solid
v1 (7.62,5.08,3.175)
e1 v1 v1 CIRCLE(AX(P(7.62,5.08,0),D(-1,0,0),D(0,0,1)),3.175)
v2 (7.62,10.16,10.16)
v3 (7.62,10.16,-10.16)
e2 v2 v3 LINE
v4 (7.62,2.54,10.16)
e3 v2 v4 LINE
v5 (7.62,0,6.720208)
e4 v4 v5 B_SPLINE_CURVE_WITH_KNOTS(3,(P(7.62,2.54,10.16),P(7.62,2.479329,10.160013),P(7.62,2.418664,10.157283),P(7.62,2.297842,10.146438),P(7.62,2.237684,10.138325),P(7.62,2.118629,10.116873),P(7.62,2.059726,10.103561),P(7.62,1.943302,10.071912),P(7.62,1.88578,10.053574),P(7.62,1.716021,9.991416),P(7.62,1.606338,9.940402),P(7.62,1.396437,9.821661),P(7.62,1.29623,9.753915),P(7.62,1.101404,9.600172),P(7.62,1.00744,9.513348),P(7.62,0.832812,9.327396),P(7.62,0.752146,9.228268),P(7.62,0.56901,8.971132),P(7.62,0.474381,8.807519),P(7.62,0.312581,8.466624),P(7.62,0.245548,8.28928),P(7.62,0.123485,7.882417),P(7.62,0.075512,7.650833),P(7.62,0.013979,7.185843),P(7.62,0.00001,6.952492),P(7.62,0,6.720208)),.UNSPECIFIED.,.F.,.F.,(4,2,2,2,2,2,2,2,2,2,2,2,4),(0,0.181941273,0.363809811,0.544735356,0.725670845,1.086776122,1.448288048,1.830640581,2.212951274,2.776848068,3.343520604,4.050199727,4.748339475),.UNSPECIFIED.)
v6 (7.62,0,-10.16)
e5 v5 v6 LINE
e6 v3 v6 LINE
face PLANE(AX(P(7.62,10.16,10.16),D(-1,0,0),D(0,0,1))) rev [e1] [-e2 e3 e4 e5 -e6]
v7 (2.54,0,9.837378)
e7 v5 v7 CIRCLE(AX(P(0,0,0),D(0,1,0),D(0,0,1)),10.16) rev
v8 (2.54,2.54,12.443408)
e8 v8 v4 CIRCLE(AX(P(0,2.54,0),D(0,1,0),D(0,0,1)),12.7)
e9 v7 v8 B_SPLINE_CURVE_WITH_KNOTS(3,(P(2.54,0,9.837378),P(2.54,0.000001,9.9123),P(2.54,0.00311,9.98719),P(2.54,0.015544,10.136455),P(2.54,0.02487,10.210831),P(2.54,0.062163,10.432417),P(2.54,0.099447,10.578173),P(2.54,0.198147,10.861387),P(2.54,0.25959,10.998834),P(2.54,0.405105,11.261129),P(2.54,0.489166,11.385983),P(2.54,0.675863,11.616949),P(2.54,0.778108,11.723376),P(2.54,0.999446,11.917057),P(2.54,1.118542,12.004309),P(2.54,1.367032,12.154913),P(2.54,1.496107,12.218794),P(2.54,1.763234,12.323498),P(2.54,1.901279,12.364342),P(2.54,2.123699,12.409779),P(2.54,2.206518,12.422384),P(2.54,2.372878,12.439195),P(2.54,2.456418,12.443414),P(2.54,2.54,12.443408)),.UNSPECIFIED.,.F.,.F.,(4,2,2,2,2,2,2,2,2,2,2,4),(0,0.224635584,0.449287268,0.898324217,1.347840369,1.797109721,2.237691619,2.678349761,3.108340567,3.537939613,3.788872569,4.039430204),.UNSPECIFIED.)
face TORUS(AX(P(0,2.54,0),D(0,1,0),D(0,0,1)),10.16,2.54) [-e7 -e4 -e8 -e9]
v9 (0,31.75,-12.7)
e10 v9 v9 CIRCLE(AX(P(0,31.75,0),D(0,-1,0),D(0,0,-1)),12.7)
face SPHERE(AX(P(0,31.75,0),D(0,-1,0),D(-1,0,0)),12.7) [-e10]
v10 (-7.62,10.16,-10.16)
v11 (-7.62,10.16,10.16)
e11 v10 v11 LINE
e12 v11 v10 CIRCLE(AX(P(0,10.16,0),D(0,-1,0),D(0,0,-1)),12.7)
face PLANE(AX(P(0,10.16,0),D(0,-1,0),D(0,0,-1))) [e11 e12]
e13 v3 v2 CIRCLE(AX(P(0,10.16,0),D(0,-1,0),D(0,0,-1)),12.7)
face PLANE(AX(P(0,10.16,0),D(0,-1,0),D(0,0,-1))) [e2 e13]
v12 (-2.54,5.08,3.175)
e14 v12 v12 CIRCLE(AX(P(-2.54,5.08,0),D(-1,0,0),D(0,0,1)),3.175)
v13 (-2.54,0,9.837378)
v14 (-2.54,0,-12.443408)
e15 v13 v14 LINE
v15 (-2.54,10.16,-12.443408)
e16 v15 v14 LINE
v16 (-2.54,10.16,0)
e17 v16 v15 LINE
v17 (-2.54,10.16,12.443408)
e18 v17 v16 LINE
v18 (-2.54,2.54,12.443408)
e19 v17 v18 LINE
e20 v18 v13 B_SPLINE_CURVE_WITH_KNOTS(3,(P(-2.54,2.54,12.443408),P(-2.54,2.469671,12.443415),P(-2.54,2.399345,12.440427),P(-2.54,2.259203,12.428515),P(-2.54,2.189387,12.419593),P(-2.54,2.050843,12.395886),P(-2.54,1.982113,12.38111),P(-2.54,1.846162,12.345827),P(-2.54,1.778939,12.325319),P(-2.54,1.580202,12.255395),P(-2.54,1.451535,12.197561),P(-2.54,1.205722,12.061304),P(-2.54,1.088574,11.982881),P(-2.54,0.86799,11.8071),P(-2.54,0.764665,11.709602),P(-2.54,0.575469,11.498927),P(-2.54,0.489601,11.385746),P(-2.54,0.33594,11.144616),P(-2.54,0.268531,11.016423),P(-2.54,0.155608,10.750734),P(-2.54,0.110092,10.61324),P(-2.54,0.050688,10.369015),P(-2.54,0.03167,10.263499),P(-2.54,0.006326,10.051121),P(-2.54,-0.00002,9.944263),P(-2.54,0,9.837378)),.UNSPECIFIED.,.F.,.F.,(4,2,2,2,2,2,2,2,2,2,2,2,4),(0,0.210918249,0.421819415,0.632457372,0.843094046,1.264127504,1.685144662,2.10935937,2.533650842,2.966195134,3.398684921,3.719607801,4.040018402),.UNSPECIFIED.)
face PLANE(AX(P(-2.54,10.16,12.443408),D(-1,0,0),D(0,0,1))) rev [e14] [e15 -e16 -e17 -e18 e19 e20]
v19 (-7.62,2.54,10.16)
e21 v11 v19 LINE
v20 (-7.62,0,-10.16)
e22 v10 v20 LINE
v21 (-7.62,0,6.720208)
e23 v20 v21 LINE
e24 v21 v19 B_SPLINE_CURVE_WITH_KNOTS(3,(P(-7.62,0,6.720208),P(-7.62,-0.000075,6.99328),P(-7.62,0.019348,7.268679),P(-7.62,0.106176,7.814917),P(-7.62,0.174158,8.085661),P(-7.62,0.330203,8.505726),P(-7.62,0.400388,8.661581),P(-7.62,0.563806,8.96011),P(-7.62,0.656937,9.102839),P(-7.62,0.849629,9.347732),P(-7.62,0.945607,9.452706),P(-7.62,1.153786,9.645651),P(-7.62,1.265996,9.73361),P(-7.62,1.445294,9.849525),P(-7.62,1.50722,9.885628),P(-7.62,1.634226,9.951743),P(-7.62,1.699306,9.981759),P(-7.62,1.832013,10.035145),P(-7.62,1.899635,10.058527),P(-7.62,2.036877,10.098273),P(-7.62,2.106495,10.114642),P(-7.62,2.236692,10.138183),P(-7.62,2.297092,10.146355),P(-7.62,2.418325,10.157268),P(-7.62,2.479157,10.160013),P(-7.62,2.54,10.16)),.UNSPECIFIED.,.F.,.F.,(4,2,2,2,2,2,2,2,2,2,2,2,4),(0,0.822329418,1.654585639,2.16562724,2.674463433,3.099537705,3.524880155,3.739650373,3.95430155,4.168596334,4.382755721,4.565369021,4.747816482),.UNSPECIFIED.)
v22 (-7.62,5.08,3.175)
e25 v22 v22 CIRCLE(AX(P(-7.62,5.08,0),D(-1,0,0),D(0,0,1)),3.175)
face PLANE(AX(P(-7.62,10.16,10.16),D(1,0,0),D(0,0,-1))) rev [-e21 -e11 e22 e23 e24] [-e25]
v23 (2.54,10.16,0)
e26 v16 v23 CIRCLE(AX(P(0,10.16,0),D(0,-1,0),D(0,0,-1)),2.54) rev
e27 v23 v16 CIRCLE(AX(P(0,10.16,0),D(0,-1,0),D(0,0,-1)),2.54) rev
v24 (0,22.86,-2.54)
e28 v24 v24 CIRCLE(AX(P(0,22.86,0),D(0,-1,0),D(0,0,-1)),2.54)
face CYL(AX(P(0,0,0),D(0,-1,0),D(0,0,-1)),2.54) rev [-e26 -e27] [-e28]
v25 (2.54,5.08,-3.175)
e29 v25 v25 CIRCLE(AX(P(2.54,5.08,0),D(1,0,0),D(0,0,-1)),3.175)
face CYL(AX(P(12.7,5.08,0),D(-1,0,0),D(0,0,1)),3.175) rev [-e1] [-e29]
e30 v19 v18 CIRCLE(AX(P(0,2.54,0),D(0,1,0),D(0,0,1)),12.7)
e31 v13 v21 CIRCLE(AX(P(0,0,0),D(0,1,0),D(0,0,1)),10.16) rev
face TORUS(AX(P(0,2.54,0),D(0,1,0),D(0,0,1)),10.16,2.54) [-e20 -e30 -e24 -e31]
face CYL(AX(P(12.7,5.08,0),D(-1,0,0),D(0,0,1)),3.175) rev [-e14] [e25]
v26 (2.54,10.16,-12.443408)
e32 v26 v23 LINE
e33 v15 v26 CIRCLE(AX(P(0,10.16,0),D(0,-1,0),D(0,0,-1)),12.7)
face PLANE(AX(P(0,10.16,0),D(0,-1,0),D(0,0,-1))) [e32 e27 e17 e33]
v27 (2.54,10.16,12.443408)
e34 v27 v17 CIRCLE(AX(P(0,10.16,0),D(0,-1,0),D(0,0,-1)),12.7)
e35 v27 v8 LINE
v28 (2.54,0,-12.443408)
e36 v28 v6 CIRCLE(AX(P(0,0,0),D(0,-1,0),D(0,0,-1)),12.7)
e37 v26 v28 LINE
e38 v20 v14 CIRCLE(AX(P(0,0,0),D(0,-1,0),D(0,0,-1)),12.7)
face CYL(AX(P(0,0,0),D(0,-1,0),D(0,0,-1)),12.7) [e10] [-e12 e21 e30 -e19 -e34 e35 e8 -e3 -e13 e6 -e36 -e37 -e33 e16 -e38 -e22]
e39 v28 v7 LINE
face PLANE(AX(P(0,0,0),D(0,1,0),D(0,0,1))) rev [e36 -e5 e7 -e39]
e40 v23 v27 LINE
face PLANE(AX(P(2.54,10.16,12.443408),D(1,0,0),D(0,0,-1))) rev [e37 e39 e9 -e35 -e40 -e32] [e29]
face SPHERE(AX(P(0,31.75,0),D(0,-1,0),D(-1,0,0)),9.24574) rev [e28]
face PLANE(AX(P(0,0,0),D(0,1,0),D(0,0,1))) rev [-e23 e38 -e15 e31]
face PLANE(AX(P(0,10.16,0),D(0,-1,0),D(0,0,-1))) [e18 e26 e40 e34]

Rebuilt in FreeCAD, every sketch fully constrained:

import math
import FreeCAD as App
import Part
import Sketcher
from FreeCAD import Vector
Q = App.Units.Quantity


def edges_at(feature, points):
    """Names of the edges that pass closest to the given points."""
    edges = feature.Shape.Edges
    near = lambda p: min(range(len(edges)), key=lambda i: edges[i].distToShape(Part.Vertex(*p))[0])
    return sorted({f"Edge{near(p) + 1}" for p in points})

doc = App.newDocument("Part")
body = doc.addObject("PartDesign::Body", "Body")

# Sketch on XY plane
sketch1 = body.newObject("Sketcher::SketchObject", "Sketch")
sketch1.AttachmentSupport = (doc.getObject("XY_Plane"), [""])
sketch1.MapMode = "FlatFace"
sketch1.addGeometry([
    Part.LineSegment(Vector(0, 0, 0), Vector(0, 5.6, 0)),  # 0
    Part.LineSegment(Vector(0, 5.6, 0), Vector(-2.5, 5.6, 0)),  # 1
    Part.LineSegment(Vector(-2.5, 5.6, 0), Vector(-2.5, 22.9, 0)),  # 2
    Part.ArcOfCircle(Part.Circle(Vector(0, 31.8, 0), Vector(0, 0, 1), 9.2), math.radians(90), math.radians(254)),  # 3
    Part.LineSegment(Vector(0, 41, 0), Vector(0, 44.5, 0)),  # 4
    Part.ArcOfCircle(Part.Circle(Vector(0, 31.8, 0), Vector(0, 0, 1), 12.7), math.radians(90), math.radians(180)),  # 5
    Part.LineSegment(Vector(-12.7, 31.8, 0), Vector(-12.7, 0, 0)),  # 6
    Part.LineSegment(Vector(-12.7, 0, 0), Vector(0, 0, 0)),  # 7
], False)
sketch1.addConstraint([
    Sketcher.Constraint("Coincident", 0, 2, 1, 1),
    Sketcher.Constraint("Coincident", 1, 2, 2, 1),
    Sketcher.Constraint("Coincident", 2, 2, 3, 2),
    Sketcher.Constraint("Coincident", 3, 1, 4, 1),
    Sketcher.Constraint("Coincident", 4, 2, 5, 1),
    Sketcher.Constraint("Tangent", 5, 2, 6, 1),
    Sketcher.Constraint("Coincident", 6, 2, 7, 1),
    Sketcher.Constraint("Coincident", 7, 2, 0, 1),
    Sketcher.Constraint("Vertical", 0),
    Sketcher.Constraint("Horizontal", 1),
    Sketcher.Constraint("Vertical", 2),
    Sketcher.Constraint("Vertical", 4),
    Sketcher.Constraint("Vertical", 6),
    Sketcher.Constraint("Horizontal", 7),
    Sketcher.Constraint("Coincident", 7, 2, -1, 1),
    Sketcher.Constraint("Coincident", 5, 3, 3, 3),
    Sketcher.Constraint("PointOnObject", 3, 3, -2),
    Sketcher.Constraint("PointOnObject", 3, 1, -2),
    Sketcher.Constraint("Radius", 5, Q("0.5 in")),
    Sketcher.Constraint("DistanceX", 1, 2, 1, 1, Q("0.1 in")),
    Sketcher.Constraint("DistanceY", 6, 2, 6, 1, Q("1.25 in")),
    Sketcher.Constraint("DistanceY", -1, 1, 2, 2, Q("0.9 in")),
    Sketcher.Constraint("DistanceY", 0, 1, 0, 2, 5.602635),
])
revolution = body.newObject("PartDesign::Revolution", "Revolution")
revolution.Profile = sketch1
revolution.ReferenceAxis = (sketch1, ["V_Axis"])
revolution.Angle = 360

# Sketch on XZ plane
sketch2 = body.newObject("Sketcher::SketchObject", "Sketch001")
sketch2.AttachmentSupport = (doc.getObject("XZ_Plane"), [""])
sketch2.MapMode = "FlatFace"
sketch2.addGeometry([
    Part.LineSegment(Vector(-3, 12, 0), Vector(-3, -12, 0)),  # 0
    Part.ArcOfCircle(Part.Circle(Vector(0, 0, 0), Vector(0, 0, 1), 13), math.radians(-102), math.radians(-78)),  # 1
    Part.LineSegment(Vector(3, -12, 0), Vector(3, 12, 0)),  # 2
    Part.ArcOfCircle(Part.Circle(Vector(0, 0, 0), Vector(0, 0, 1), 13), math.radians(78), math.radians(102)),  # 3
    Part.LineSegment(Vector(-8, -10, 0), Vector(-8, 10, 0)),  # 4
    Part.ArcOfCircle(Part.Circle(Vector(0, 0, 0), Vector(0, 0, 1), 13), math.radians(127), math.radians(233)),  # 5
    Part.LineSegment(Vector(8, 10, 0), Vector(8, -10, 0)),  # 6
    Part.ArcOfCircle(Part.Circle(Vector(0, 0, 0), Vector(0, 0, 1), 13), math.radians(-53), math.radians(53)),  # 7
], False)
sketch2.addConstraint([
    Sketcher.Constraint("Coincident", 0, 2, 1, 1),
    Sketcher.Constraint("Coincident", 1, 2, 2, 1),
    Sketcher.Constraint("Coincident", 2, 2, 3, 1),
    Sketcher.Constraint("Coincident", 3, 2, 0, 1),
    Sketcher.Constraint("Coincident", 4, 1, 5, 2),
    Sketcher.Constraint("Coincident", 5, 1, 4, 2),
    Sketcher.Constraint("Coincident", 6, 1, 7, 2),
    Sketcher.Constraint("Coincident", 7, 1, 6, 2),
    Sketcher.Constraint("Vertical", 0),
    Sketcher.Constraint("Vertical", 2),
    Sketcher.Constraint("Vertical", 4),
    Sketcher.Constraint("Vertical", 6),
    Sketcher.Constraint("Coincident", 1, 3, -1, 1),
    Sketcher.Constraint("Coincident", 3, 3, -1, 1),
    Sketcher.Constraint("Coincident", 5, 3, -1, 1),
    Sketcher.Constraint("Coincident", 7, 3, -1, 1),
    Sketcher.Constraint("Equal", 1, 3),
    Sketcher.Constraint("Equal", 3, 5),
    Sketcher.Constraint("Equal", 5, 7),
    Sketcher.Constraint("Horizontal", 0, 2, 1, 2),
    Sketcher.Constraint("Horizontal", 5, 1, 6, 1),
    Sketcher.Constraint("Radius", 1, Q("0.5 in")),
    Sketcher.Constraint("DistanceY", 4, 1, 4, 2, Q("0.8 in")),
    Sketcher.Constraint("DistanceX", 0, 2, -1, 1, Q("0.1 in")),
])
pocket1 = body.newObject("PartDesign::Pocket", "Pocket")
pocket1.Profile = sketch2
pocket1.Length = Q("0.4 in")

# Sketch on YZ plane
sketch3 = body.newObject("Sketcher::SketchObject", "Sketch002")
sketch3.AttachmentSupport = (doc.getObject("YZ_Plane"), [""])
sketch3.MapMode = "FlatFace"
sketch3.AttachmentOffset = App.Placement(Vector(0, 0, -0.3 * 25.4), App.Rotation())
sketch3.addGeometry(Part.Circle(Vector(5.1, 0, 0), Vector(0, 0, 1), 3.2), False)
sketch3.addConstraint([
    Sketcher.Constraint("PointOnObject", 0, 3, -1),
    Sketcher.Constraint("Diameter", 0, Q("0.25 in")),
    Sketcher.Constraint("DistanceX", -1, 1, 0, 3, Q("0.2 in")),
])
pocket2 = body.newObject("PartDesign::Pocket", "Pocket001")
pocket2.Profile = sketch3
pocket2.Type = "ThroughAll"
pocket2.Reversed = True
doc.recompute()

fillet = body.newObject("PartDesign::Fillet", "Fillet")
fillet.Base = (pocket2, edges_at(pocket2, [(5.207, 0, 11.584), (-5.207, 0, 11.584)]))
fillet.Radius = Q("0.1 in")

doc.recompute()
